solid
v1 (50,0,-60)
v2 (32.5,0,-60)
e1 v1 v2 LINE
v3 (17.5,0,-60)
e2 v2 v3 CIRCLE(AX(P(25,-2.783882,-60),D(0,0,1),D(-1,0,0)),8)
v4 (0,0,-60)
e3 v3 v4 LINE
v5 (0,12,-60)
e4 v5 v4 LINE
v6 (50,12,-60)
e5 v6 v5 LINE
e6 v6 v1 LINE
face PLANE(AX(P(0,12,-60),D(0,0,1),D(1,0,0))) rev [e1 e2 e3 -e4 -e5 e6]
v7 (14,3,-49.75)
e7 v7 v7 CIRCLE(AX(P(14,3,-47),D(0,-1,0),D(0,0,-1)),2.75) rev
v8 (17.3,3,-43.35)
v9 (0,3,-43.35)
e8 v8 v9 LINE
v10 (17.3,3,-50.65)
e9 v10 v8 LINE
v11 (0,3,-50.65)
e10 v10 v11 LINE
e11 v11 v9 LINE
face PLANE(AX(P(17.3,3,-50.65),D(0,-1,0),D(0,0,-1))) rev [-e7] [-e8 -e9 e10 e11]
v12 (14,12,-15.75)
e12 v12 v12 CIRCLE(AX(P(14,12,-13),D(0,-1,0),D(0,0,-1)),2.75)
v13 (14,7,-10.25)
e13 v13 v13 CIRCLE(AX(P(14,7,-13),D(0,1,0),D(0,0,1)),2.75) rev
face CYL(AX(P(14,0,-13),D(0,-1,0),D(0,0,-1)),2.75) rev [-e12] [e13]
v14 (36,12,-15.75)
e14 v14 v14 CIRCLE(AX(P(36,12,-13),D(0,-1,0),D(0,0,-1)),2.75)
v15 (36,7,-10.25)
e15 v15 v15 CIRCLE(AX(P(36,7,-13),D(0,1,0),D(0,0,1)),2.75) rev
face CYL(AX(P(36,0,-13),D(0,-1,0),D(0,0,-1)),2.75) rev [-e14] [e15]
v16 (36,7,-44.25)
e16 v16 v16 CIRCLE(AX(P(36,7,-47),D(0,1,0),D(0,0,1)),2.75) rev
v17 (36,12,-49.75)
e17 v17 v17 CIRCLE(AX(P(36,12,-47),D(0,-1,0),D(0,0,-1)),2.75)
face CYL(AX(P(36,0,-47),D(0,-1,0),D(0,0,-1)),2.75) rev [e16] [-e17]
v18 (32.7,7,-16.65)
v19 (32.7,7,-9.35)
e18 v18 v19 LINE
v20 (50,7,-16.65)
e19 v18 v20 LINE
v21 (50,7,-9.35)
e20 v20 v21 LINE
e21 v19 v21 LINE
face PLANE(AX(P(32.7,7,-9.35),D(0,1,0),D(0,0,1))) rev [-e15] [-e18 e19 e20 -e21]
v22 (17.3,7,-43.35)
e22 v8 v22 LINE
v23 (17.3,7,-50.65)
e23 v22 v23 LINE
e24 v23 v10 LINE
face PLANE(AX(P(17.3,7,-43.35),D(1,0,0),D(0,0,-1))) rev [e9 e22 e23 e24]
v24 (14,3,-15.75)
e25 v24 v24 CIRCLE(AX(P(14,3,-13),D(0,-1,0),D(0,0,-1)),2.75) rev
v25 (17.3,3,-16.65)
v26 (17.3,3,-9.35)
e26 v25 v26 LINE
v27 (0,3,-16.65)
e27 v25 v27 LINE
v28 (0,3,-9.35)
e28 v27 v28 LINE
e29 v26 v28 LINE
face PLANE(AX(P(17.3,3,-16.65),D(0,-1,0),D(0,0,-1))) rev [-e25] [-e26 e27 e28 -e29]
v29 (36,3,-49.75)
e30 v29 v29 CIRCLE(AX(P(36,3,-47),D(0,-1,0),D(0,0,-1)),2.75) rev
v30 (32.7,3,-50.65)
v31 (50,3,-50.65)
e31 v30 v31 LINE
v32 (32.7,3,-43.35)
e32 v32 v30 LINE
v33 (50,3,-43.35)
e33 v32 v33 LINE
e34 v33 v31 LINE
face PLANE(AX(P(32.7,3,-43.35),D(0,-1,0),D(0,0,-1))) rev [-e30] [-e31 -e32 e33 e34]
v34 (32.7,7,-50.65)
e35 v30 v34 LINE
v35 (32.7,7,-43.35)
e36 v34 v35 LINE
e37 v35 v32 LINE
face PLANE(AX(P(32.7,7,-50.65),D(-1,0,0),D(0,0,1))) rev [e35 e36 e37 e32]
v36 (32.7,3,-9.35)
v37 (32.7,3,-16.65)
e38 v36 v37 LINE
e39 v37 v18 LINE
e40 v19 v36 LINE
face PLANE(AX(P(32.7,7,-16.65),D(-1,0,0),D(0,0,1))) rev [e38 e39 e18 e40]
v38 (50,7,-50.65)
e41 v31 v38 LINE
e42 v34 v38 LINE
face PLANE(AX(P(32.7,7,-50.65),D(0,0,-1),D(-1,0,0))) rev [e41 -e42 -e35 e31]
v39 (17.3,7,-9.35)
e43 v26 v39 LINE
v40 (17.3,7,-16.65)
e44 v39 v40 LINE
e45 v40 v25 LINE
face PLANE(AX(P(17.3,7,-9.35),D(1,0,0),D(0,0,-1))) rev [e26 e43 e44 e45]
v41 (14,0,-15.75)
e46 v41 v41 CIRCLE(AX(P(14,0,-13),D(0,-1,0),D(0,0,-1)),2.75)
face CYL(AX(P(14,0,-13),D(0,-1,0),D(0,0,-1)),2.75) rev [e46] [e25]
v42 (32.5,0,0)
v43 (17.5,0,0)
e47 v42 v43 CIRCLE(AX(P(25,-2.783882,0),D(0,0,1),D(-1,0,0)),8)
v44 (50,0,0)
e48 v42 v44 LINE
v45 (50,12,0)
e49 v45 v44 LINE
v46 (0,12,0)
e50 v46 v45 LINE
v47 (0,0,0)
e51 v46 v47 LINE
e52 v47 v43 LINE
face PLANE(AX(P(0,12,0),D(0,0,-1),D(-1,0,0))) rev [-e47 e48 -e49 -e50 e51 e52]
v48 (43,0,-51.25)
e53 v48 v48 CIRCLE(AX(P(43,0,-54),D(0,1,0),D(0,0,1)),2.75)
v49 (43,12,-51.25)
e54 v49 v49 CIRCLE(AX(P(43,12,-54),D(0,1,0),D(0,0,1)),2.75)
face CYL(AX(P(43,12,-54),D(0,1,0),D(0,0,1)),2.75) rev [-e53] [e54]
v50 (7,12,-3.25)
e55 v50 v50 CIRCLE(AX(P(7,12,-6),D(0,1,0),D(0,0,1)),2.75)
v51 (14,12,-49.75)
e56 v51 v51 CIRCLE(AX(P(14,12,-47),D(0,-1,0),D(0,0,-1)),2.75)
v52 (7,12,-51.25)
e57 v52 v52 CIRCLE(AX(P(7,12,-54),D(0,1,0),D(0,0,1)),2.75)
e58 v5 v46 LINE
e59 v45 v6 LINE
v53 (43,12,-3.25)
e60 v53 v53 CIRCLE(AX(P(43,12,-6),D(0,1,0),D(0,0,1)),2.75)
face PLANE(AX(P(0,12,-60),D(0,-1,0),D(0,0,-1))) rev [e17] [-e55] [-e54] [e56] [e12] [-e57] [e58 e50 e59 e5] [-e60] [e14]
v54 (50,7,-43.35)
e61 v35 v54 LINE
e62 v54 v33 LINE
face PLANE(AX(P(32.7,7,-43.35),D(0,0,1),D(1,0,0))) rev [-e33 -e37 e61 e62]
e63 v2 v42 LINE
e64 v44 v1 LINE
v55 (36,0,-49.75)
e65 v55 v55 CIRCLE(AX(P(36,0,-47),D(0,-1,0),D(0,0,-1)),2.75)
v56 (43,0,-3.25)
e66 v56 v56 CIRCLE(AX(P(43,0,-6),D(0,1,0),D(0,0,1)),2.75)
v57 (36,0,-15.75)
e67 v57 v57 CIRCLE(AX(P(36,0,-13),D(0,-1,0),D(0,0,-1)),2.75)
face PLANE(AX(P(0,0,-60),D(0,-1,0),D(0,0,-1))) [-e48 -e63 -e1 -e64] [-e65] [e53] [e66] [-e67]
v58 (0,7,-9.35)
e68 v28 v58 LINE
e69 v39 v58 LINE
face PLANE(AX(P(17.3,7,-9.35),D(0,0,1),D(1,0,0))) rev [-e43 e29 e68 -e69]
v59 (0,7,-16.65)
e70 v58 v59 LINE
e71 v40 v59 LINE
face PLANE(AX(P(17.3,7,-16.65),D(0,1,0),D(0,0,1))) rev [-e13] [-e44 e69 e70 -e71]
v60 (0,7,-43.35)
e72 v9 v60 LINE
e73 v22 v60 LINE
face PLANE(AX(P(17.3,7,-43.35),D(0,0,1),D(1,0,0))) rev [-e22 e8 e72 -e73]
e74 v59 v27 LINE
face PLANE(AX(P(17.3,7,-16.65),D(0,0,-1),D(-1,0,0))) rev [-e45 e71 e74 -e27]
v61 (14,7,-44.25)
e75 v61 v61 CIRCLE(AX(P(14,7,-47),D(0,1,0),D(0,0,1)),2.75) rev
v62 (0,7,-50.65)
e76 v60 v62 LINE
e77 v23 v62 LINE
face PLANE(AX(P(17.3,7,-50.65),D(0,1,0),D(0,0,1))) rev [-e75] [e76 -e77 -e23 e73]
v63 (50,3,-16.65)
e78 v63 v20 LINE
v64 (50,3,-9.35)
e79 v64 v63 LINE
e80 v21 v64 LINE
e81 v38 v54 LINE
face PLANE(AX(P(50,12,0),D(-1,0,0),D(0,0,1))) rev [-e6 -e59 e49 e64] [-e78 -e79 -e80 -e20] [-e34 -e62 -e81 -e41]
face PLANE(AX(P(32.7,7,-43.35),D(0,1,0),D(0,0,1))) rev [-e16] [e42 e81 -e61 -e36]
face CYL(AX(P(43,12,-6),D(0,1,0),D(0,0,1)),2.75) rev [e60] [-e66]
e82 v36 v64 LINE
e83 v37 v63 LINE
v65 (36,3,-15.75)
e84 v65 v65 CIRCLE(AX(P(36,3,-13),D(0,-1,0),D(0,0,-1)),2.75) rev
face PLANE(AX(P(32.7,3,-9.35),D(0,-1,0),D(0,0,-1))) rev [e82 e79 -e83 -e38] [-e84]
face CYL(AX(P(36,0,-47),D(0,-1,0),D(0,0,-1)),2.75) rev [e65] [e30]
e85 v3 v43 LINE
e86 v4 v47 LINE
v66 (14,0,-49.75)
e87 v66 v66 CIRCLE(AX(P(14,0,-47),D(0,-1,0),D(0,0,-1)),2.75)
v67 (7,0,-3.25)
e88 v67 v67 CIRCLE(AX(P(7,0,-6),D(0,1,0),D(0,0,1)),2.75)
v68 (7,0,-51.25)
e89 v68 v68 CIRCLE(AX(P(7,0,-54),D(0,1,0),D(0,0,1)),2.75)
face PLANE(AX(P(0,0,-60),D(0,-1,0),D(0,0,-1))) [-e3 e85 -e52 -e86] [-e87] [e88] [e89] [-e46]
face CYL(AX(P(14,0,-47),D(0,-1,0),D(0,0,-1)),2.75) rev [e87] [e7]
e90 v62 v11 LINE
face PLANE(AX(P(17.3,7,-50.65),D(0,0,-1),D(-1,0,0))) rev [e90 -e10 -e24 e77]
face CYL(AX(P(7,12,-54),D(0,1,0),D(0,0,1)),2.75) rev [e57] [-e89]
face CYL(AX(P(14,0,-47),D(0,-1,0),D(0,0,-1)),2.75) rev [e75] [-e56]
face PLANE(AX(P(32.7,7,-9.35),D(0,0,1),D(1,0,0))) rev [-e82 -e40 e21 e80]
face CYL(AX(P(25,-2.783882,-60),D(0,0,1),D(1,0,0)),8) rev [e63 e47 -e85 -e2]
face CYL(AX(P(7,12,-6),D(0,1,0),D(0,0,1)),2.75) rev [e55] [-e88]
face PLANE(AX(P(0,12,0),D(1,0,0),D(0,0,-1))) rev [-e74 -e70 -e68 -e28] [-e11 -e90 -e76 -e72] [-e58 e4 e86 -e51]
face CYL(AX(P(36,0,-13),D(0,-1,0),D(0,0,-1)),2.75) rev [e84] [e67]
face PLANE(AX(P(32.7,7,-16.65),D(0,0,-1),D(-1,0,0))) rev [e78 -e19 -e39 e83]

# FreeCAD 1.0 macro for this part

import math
import FreeCAD as App
import Part
import Sketcher
from FreeCAD import Vector
Q = App.Units.Quantity


def add_polygon(sketch, points):
    """Adds a closed chain of lines whose ends are joined by coincident constraints."""
    first, n = sketch.GeometryCount, len(points)
    for a, b in zip(points, points[1:] + points[:1]):
        sketch.addGeometry(Part.LineSegment(App.Vector(*a, 0), App.Vector(*b, 0)), False)
    for i in range(n):
        sketch.addConstraint(Sketcher.Constraint("Coincident", first + i, 2, first + (i + 1) % n, 1))

doc = App.newDocument("Part")
body = doc.addObject("PartDesign::Body", "Body")

# Sketch on XZ plane
sketch1 = doc.addObject("Sketcher::SketchObject", "Sketch")
body.addObject(sketch1)
sketch1.AttachmentSupport = (doc.XZ_Plane, [""])
sketch1.MapMode = "FlatFace"
add_polygon(sketch1, [(0, -60), (0, 0), (50, 0), (50, -60)])  # lines 0-3
sketch1.addConstraint([
    Sketcher.Constraint("Vertical", 0),
    Sketcher.Constraint("Horizontal", 1),
    Sketcher.Constraint("Vertical", 2),
    Sketcher.Constraint("Horizontal", 3),
    Sketcher.Constraint("Coincident", 0, 2, -1, 1),
    Sketcher.Constraint("DistanceX", 1, 1, 1, 2, Q("50 mm")),
    Sketcher.Constraint("DistanceY", 0, 1, 0, 2, Q("60 mm")),
])
pad1 = doc.addObject("PartDesign::Pad", "Pad")
body.addObject(pad1)
pad1.Profile = sketch1
pad1.Length = 12
pad1.Reversed = True

# Sketch on XY plane
sketch2 = doc.addObject("Sketcher::SketchObject", "Sketch001")
body.addObject(sketch2)
sketch2.AttachmentSupport = (doc.XY_Plane, [""])
sketch2.MapMode = "FlatFace"
sketch2.addGeometry([
    Part.LineSegment(Vector(18, 0, 0), Vector(32, 0, 0)),
    Part.ArcOfCircle(Part.Circle(Vector(25, -3, 0), Vector(0, 0, 1), 8), math.radians(20), math.radians(160)),
], False)
sketch2.addConstraint([
    Sketcher.Constraint("Coincident", 0, 1, 1, 2),
    Sketcher.Constraint("Coincident", 1, 1, 0, 2),
    Sketcher.Constraint("Horizontal", 0),
    Sketcher.Constraint("PointOnObject", 0, 1, -1),
    Sketcher.Constraint("Radius", 1, Q("8 mm")),
    Sketcher.Constraint("DistanceX", 0, 1, 0, 2, Q("15 mm")),
    Sketcher.Constraint("DistanceX", -1, 1, 1, 3, Q("25 mm")),
])
pocket1 = doc.addObject("PartDesign::Pocket", "Pocket")
body.addObject(pocket1)
pocket1.Profile = sketch2
pocket1.Type = "ThroughAll"

# Sketch on XZ plane
sketch3 = doc.addObject("Sketcher::SketchObject", "Sketch002")
body.addObject(sketch3)
sketch3.AttachmentSupport = (doc.XZ_Plane, [""])
sketch3.MapMode = "FlatFace"
sketch3.addGeometry([
    Part.Circle(Vector(14, -13, 0), Vector(0, 0, 1), 2.8),
    Part.Circle(Vector(36, -13, 0), Vector(0, 0, 1), 2.8),
    Part.Circle(Vector(14, -47, 0), Vector(0, 0, 1), 2.8),
    Part.Circle(Vector(36, -47, 0), Vector(0, 0, 1), 2.8),
], False)
sketch3.addConstraint([
    Sketcher.Constraint("Equal", 0, 1),
    Sketcher.Constraint("Equal", 1, 2),
    Sketcher.Constraint("Equal", 2, 3),
    Sketcher.Constraint("Horizontal", 0, 3, 1, 3),
    Sketcher.Constraint("Horizontal", 2, 3, 3, 3),
    Sketcher.Constraint("Vertical", 0, 3, 2, 3),
    Sketcher.Constraint("Vertical", 1, 3, 3, 3),
    Sketcher.Constraint("Diameter", 0, Q("5.5 mm")),
    Sketcher.Constraint("DistanceX", -1, 1, 0, 3, Q("14 mm")),
    Sketcher.Constraint("DistanceY", 0, 3, -1, 1, Q("13 mm")),
    Sketcher.Constraint("DistanceX", -1, 1, 1, 3, Q("36 mm")),
    Sketcher.Constraint("DistanceY", 2, 3, -1, 1, Q("47 mm")),
])
doc.recompute()
hole = doc.addObject("PartDesign::Hole", "Hole")
body.addObject(hole)
hole.Profile = sketch3
hole.ThreadType = "None"
hole.Diameter = 5.5
hole.DepthType = "Dimension"
hole.Depth = 30
hole.DrillPoint = "Angled"
hole.DrillPointAngle = 118

# Sketch on YZ plane
sketch4 = doc.addObject("Sketcher::SketchObject", "Sketch003")
body.addObject(sketch4)
sketch4.AttachmentSupport = (doc.YZ_Plane, [""])
sketch4.MapMode = "FlatFace"
add_polygon(sketch4, [(7, -50.6), (3, -50.6), (3, -43.4), (7, -43.4)])  # lines 0-3
add_polygon(sketch4, [(7, -16.6), (3, -16.6), (3, -9.3), (7, -9.3)])  # lines 4-7
sketch4.addConstraint([
    Sketcher.Constraint("Horizontal", 0),
    Sketcher.Constraint("Vertical", 1),
    Sketcher.Constraint("Horizontal", 2),
    Sketcher.Constraint("Vertical", 3),
    Sketcher.Constraint("Horizontal", 4),
    Sketcher.Constraint("Vertical", 5),
    Sketcher.Constraint("Horizontal", 6),
    Sketcher.Constraint("Vertical", 7),
    Sketcher.Constraint("Vertical", 1, 2, 4, 2),
    Sketcher.Constraint("Vertical", 3, 2, 6, 2),
    Sketcher.Constraint("Equal", 3, 5),
    Sketcher.Constraint("DistanceX", 0, 2, 0, 1, Q("4 mm")),
    Sketcher.Constraint("DistanceY", 1, 1, 1, 2, Q("7.3 mm")),
    Sketcher.Constraint("DistanceX", -1, 1, 0, 2, Q("3 mm")),
    Sketcher.Constraint("DistanceY", 0, 2, 4, 2, Q("34 mm")),
    Sketcher.Constraint("DistanceY", 0, 2, -1, 1, Q("50.65 mm")),
])
pocket2 = doc.addObject("PartDesign::Pocket", "Pocket001")
body.addObject(pocket2)
pocket2.Profile = sketch4
pocket2.Length = 17.3
pocket2.Reversed = True

# Sketch on YZ plane
sketch5 = doc.addObject("Sketcher::SketchObject", "Sketch004")
body.addObject(sketch5)
sketch5.AttachmentSupport = (doc.YZ_Plane, [""])
sketch5.MapMode = "FlatFace"
sketch5.AttachmentOffset = App.Placement(Vector(0, 0, 50), App.Rotation())
add_polygon(sketch5, [(7, -9.3), (3, -9.3), (3, -16.6), (7, -16.6)])  # lines 0-3
add_polygon(sketch5, [(7, -43.4), (3, -43.4), (3, -50.6), (7, -50.6)])  # lines 4-7
sketch5.addConstraint([
    Sketcher.Constraint("Horizontal", 0),
    Sketcher.Constraint("Vertical", 1),
    Sketcher.Constraint("Horizontal", 2),
    Sketcher.Constraint("Vertical", 3),
    Sketcher.Constraint("Horizontal", 4),
    Sketcher.Constraint("Vertical", 5),
    Sketcher.Constraint("Horizontal", 6),
    Sketcher.Constraint("Vertical", 7),
    Sketcher.Constraint("Vertical", 1, 2, 4, 2),
    Sketcher.Constraint("Vertical", 3, 2, 6, 2),
    Sketcher.Constraint("Equal", 3, 5),
    Sketcher.Constraint("DistanceX", 0, 2, 0, 1, Q("4 mm")),
    Sketcher.Constraint("DistanceY", 1, 2, 1, 1, Q("7.3 mm")),
    Sketcher.Constraint("DistanceX", -1, 1, 0, 2, Q("3 mm")),
    Sketcher.Constraint("DistanceY", 4, 2, 0, 2, Q("34 mm")),
    Sketcher.Constraint("DistanceY", 0, 2, -1, 1, Q("9.35 mm")),
])
pocket3 = doc.addObject("PartDesign::Pocket", "Pocket002")
body.addObject(pocket3)
pocket3.Profile = sketch5
pocket3.Length = 17.3

# Sketch on XZ plane
sketch6 = doc.addObject("Sketcher::SketchObject", "Sketch005")
body.addObject(sketch6)
sketch6.AttachmentSupport = (doc.XZ_Plane, [""])
sketch6.MapMode = "FlatFace"
sketch6.AttachmentOffset = App.Placement(Vector(0, 0, -12), App.Rotation())
sketch6.addGeometry([
    Part.Circle(Vector(43, -6, 0), Vector(0, 0, 1), 2.8),
    Part.Circle(Vector(7, -6, 0), Vector(0, 0, 1), 2.8),
    Part.Circle(Vector(7, -54, 0), Vector(0, 0, 1), 2.8),
    Part.Circle(Vector(43, -54, 0), Vector(0, 0, 1), 2.8),
], False)
sketch6.addConstraint([
    Sketcher.Constraint("Equal", 0, 1),
    Sketcher.Constraint("Equal", 1, 2),
    Sketcher.Constraint("Equal", 2, 3),
    Sketcher.Constraint("Horizontal", 0, 3, 1, 3),
    Sketcher.Constraint("Horizontal", 2, 3, 3, 3),
    Sketcher.Constraint("Vertical", 1, 3, 2, 3),
    Sketcher.Constraint("Vertical", 0, 3, 3, 3),
    Sketcher.Constraint("Diameter", 0, Q("5.5 mm")),
    Sketcher.Constraint("DistanceX", -1, 1, 0, 3, Q("43 mm")),
    Sketcher.Constraint("DistanceY", 0, 3, -1, 1, Q("6 mm")),
    Sketcher.Constraint("DistanceX", -1, 1, 1, 3, Q("7 mm")),
    Sketcher.Constraint("DistanceY", 2, 3, -1, 1, Q("54 mm")),
])
doc.recompute()
hole2 = doc.addObject("PartDesign::Hole", "Hole001")
body.addObject(hole2)
hole2.Profile = sketch6
hole2.ThreadType = "None"
hole2.Diameter = 5.5
hole2.DepthType = "ThroughAll"
hole2.Reversed = True

doc.recompute()
